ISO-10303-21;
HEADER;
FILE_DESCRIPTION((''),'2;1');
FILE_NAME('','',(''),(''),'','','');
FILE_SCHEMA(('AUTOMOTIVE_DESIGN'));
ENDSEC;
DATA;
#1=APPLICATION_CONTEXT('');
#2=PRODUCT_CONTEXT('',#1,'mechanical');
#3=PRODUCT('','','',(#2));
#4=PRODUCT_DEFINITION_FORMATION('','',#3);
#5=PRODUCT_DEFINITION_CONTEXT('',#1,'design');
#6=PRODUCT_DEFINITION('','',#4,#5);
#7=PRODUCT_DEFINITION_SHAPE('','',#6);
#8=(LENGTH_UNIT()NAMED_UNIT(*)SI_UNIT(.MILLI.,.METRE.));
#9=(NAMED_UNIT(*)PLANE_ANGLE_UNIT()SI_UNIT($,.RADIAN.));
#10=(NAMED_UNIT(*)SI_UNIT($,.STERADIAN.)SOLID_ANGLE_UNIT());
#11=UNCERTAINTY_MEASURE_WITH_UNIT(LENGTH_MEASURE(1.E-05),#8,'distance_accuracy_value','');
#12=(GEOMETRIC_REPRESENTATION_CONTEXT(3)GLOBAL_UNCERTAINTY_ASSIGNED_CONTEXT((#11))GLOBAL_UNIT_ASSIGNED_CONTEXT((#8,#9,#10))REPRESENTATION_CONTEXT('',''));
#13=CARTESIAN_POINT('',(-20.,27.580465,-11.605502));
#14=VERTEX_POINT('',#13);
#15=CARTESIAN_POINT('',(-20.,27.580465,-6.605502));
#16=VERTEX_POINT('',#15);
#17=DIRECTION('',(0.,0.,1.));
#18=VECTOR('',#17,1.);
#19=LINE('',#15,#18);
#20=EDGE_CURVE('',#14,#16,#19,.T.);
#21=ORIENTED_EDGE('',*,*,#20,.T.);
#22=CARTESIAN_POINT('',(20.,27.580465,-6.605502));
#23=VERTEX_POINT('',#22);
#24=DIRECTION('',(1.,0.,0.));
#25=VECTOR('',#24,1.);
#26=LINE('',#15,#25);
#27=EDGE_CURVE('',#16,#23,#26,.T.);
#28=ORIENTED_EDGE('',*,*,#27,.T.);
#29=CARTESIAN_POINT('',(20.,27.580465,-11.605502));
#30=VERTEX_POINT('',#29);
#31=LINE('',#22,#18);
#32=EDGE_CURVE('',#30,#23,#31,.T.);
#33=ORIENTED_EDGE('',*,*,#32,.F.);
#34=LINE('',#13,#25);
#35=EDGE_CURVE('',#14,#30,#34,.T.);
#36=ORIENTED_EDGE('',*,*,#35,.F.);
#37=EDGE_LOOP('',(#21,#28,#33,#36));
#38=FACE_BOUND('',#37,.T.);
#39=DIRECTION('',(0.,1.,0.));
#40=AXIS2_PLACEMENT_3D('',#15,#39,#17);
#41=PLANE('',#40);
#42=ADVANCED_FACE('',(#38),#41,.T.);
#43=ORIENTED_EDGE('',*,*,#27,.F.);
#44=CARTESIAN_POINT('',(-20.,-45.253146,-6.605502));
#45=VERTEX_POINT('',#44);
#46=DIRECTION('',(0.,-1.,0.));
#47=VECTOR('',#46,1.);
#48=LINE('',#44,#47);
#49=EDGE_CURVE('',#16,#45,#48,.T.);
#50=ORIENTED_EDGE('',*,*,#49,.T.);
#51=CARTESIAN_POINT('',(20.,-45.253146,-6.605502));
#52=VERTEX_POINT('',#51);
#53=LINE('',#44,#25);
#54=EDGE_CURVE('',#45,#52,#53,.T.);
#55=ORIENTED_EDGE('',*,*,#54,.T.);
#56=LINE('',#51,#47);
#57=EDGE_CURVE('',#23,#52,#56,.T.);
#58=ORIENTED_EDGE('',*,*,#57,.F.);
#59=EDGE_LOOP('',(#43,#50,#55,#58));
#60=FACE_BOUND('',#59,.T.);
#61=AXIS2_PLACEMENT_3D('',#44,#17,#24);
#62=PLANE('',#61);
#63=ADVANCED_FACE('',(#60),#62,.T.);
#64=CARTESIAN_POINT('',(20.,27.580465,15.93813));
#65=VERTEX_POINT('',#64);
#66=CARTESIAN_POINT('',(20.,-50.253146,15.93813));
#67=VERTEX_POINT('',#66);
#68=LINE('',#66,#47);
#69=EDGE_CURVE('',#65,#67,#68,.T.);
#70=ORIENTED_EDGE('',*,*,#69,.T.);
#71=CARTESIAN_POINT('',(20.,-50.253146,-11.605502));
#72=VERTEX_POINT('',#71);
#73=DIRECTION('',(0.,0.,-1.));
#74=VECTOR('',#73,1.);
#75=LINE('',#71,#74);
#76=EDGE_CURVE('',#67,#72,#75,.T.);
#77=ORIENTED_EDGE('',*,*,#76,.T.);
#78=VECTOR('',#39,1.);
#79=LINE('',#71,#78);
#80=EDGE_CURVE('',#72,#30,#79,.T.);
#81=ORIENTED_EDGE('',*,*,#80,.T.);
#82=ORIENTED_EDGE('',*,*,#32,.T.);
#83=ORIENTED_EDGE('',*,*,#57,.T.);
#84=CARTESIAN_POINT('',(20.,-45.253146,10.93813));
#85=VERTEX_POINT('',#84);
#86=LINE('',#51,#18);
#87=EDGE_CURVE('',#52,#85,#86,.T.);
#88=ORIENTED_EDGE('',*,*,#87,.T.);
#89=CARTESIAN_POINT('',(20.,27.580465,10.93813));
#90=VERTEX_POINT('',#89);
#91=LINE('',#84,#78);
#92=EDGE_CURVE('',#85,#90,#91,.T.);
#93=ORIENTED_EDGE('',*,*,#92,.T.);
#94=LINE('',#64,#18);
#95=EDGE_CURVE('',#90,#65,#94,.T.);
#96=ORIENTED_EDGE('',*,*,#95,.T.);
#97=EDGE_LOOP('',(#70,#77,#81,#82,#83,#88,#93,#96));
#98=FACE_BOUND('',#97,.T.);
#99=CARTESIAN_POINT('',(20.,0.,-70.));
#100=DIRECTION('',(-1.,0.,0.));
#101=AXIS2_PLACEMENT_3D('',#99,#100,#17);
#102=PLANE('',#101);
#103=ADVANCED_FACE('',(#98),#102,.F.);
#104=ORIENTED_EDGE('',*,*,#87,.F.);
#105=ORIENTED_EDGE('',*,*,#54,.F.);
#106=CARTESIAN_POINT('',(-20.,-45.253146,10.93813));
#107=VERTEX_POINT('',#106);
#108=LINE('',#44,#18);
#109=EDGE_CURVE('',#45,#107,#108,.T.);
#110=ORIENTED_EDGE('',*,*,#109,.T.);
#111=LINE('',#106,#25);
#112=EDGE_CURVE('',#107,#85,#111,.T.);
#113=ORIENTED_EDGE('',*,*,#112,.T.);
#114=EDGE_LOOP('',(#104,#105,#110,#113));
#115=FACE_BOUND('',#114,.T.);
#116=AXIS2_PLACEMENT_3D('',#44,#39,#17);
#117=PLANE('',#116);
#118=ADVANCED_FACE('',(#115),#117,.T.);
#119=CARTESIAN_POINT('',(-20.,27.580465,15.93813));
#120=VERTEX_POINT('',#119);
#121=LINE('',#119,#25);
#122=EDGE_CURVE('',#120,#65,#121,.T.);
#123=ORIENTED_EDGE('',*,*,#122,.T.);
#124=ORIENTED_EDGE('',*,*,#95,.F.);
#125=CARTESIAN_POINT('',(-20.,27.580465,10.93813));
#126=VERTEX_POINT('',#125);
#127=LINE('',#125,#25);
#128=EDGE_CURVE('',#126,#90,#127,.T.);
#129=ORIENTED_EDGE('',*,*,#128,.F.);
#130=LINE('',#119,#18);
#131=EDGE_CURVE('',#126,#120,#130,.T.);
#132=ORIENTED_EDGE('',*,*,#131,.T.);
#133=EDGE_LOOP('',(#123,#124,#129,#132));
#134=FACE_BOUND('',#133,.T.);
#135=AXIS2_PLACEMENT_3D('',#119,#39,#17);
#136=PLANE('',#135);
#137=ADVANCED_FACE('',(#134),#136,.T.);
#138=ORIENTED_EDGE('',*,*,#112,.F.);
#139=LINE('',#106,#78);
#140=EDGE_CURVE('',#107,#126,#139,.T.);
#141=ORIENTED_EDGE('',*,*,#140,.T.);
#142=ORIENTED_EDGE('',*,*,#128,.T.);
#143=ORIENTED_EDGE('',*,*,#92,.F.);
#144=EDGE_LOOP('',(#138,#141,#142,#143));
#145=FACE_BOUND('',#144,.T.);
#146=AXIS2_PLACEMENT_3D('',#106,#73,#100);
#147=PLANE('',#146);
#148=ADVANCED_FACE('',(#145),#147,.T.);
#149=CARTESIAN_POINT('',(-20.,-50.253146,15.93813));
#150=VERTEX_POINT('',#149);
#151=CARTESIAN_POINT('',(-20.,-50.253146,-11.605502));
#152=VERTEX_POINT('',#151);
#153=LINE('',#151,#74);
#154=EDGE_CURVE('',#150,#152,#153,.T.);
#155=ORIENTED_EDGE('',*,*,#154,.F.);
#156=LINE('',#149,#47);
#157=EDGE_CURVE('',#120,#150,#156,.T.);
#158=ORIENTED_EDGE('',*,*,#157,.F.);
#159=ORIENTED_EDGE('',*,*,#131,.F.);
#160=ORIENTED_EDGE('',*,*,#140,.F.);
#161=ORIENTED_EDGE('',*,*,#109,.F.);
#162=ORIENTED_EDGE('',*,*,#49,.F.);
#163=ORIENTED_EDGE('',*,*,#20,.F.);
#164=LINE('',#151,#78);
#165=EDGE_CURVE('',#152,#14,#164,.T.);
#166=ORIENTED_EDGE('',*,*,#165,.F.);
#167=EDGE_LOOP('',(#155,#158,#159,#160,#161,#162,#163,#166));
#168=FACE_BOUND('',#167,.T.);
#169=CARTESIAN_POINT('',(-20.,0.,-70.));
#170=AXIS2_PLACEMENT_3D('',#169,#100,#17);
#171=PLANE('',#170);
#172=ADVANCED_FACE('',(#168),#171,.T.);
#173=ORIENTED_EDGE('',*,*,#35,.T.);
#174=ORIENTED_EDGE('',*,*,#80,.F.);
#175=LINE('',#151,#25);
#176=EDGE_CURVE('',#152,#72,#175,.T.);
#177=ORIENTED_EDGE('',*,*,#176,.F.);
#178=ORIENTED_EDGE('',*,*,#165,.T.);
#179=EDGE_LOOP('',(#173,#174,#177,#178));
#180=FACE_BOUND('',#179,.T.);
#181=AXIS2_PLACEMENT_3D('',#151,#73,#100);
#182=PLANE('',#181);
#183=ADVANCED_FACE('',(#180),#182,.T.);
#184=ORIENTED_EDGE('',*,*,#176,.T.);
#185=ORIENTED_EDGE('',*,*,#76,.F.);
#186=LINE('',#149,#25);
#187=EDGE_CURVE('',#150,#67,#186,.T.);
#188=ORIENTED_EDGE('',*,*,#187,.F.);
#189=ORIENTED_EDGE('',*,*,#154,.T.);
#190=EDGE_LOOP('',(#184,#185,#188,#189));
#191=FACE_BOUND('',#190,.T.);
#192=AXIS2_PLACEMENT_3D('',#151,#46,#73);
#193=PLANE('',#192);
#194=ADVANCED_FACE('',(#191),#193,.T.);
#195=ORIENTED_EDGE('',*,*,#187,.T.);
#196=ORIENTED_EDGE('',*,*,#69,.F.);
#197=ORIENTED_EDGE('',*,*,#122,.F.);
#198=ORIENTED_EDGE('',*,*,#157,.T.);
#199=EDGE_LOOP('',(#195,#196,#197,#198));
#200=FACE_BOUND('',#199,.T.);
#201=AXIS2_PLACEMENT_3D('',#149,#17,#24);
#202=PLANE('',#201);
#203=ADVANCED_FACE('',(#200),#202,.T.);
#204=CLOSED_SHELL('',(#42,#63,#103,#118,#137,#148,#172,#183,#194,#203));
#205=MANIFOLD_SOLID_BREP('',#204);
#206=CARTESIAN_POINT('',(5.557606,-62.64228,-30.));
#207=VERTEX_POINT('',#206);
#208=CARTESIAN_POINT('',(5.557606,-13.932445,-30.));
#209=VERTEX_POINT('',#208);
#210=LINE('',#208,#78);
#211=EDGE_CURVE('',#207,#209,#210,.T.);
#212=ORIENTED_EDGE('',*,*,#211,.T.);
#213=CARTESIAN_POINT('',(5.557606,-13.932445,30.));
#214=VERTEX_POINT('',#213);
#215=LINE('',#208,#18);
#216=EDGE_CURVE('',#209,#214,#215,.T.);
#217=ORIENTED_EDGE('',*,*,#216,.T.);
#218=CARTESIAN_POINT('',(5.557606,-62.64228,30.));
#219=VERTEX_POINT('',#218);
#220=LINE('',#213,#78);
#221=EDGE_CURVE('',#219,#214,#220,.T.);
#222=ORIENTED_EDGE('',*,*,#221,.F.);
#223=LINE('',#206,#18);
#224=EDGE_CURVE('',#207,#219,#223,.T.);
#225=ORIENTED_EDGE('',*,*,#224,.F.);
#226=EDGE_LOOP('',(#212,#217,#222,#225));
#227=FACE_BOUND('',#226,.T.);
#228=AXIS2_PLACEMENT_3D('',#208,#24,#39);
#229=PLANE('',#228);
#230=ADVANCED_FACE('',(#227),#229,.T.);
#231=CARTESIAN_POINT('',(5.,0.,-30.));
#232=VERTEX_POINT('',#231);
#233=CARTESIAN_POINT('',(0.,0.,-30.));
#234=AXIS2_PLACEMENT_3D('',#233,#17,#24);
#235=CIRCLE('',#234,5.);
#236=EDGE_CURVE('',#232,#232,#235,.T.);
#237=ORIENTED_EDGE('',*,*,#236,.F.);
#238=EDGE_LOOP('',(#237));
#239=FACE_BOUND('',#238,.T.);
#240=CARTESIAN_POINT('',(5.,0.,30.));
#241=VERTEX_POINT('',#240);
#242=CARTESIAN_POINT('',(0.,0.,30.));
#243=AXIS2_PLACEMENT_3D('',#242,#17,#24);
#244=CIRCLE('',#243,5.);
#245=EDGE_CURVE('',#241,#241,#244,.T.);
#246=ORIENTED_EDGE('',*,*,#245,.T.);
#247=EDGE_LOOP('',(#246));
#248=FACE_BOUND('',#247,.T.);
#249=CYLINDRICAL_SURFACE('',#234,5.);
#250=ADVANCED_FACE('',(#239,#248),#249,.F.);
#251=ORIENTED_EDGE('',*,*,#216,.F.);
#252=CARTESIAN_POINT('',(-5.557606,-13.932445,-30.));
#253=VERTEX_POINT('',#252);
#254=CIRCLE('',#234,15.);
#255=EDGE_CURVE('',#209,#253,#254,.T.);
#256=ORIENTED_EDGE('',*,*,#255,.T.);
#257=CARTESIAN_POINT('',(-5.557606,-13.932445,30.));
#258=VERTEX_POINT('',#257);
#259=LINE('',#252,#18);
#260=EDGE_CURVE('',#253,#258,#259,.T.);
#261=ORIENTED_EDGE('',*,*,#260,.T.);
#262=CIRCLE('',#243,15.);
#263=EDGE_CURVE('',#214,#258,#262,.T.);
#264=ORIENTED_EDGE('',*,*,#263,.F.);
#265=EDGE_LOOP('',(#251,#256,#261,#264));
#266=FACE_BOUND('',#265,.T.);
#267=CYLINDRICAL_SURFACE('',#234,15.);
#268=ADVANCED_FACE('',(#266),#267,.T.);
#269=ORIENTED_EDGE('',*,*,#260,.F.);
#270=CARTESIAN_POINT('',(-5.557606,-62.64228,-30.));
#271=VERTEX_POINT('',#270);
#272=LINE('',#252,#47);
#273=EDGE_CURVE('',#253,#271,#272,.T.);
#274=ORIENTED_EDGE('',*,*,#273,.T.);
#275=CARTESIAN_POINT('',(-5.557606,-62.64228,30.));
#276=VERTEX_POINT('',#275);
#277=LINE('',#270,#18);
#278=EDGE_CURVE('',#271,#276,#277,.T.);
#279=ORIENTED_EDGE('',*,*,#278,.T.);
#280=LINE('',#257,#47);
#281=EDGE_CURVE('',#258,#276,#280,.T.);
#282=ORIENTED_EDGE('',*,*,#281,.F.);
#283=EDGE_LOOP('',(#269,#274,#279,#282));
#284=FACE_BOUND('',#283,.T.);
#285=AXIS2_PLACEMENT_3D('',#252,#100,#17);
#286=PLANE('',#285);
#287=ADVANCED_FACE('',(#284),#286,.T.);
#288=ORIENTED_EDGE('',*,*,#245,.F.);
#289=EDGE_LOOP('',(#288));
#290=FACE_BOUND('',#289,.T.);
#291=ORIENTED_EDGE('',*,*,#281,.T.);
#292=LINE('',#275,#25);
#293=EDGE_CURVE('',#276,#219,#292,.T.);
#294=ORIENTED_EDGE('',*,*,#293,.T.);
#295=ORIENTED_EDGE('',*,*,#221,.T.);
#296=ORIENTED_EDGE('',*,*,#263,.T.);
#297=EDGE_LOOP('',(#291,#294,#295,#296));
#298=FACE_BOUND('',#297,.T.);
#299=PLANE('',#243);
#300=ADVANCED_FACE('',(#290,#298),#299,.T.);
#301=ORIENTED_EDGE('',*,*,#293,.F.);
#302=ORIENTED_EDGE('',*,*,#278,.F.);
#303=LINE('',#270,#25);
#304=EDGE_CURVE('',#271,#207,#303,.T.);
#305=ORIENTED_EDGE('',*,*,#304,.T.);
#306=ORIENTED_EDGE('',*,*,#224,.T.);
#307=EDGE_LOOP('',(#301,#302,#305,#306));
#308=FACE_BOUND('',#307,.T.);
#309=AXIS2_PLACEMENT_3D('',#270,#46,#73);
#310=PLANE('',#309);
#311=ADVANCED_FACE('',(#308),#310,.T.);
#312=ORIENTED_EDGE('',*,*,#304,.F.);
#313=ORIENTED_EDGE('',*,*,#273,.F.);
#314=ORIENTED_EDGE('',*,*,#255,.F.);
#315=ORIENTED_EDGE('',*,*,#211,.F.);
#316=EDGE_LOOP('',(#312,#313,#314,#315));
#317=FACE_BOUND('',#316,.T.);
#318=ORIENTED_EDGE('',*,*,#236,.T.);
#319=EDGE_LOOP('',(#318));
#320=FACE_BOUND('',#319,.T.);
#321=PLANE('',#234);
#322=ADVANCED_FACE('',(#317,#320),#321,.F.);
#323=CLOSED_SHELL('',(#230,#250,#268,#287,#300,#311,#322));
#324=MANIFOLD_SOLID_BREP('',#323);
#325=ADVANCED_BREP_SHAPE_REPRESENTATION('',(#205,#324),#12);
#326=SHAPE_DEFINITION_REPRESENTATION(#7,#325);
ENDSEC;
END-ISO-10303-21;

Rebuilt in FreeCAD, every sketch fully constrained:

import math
import FreeCAD as App
import Part
import Sketcher

V = App.Vector

doc = App.newDocument("Part")
params = doc.addObject("Spreadsheet::Sheet", "Params")
for row, (alias, value) in enumerate([
    ("sketch1_diameter", "10 mm"),
    ("sketch1_radius", "15 mm"),
    ("pad1_length", "30 mm"),
    ("pad1_length2", "30 mm"),
    ("sketch2_height", "5 mm"),
    ("pad2_length", "20 mm"),
    ("pad2_length2", "20 mm"),
], start=1):
    params.set(f"A{row}", alias)
    params.set(f"B{row}", "=" + value)
    params.setAlias(f"B{row}", alias)

body = doc.addObject("PartDesign::Body", "Body")

# Sketch on XY plane
sketch1 = body.newObject("Sketcher::SketchObject", "Sketch")
sketch1.AttachmentSupport = (doc.getObject("XY_Plane"), [""])
sketch1.MapMode = "FlatFace"
sketch1.addGeometry(Part.LineSegment(V(-6, -14, 0), V(-6, -63, 0)), False)
sketch1.addGeometry(Part.LineSegment(V(-6, -63, 0), V(6, -63, 0)), False)
sketch1.addGeometry(Part.LineSegment(V(6, -63, 0), V(6, -14, 0)), False)
sketch1.addGeometry(Part.ArcOfCircle(Part.Circle(V(0, 0, 0), V(0, 0, 1), 15), math.radians(-68), math.radians(248)), False)
sketch1.addGeometry(Part.Circle(V(0, 0, 0), V(0, 0, 1), 5), False)
sketch1.addConstraint(Sketcher.Constraint("Coincident", 0, 2, 1, 1))
sketch1.addConstraint(Sketcher.Constraint("Coincident", 1, 2, 2, 1))
sketch1.addConstraint(Sketcher.Constraint("Coincident", 2, 2, 3, 1))
sketch1.addConstraint(Sketcher.Constraint("Coincident", 3, 2, 0, 1))
sketch1.addConstraint(Sketcher.Constraint("Vertical", 0))
sketch1.addConstraint(Sketcher.Constraint("Horizontal", 1))
sketch1.addConstraint(Sketcher.Constraint("Vertical", 2))
sketch1.addConstraint(Sketcher.Constraint("Coincident", 3, 3, -1, 1))
sketch1.addConstraint(Sketcher.Constraint("Coincident", 4, 3, -1, 1))
sketch1.addConstraint(Sketcher.Constraint("Horizontal", 2, 2, 3, 2))
sketch1.addConstraint(Sketcher.Constraint("Diameter", 4, 10.0))
sketch1.addConstraint(Sketcher.Constraint("Radius", 3, 15.0))
sketch1.addConstraint(Sketcher.Constraint("DistanceX", 1, 1, 1, 2, 11.115213))
sketch1.addConstraint(Sketcher.Constraint("DistanceY", 0, 2, 0, 1, 48.709835))
sketch1.setExpression("Constraints[10]", "Params.sketch1_diameter")
sketch1.setExpression("Constraints[11]", "Params.sketch1_radius")
pad1 = body.newObject("PartDesign::Pad", "Pad")
pad1.Profile = sketch1
pad1.Type = "TwoLengths"
pad1.setExpression("Length", "Params.pad1_length")
pad1.setExpression("Length2", "Params.pad1_length2")
body2 = doc.addObject("PartDesign::Body", "Body001")

# Sketch on YZ plane
sketch2 = body2.newObject("Sketcher::SketchObject", "Sketch001")
sketch2.AttachmentSupport = (doc.getObject("YZ_Plane001"), [""])
sketch2.MapMode = "FlatFace"
sketch2.addGeometry(Part.LineSegment(V(-50, 86, 0), V(-50, 58, 0)), False)
sketch2.addGeometry(Part.LineSegment(V(-50, 58, 0), V(28, 58, 0)), False)
sketch2.addGeometry(Part.LineSegment(V(28, 58, 0), V(28, 63, 0)), False)
sketch2.addGeometry(Part.LineSegment(V(28, 63, 0), V(-45, 63, 0)), False)
sketch2.addGeometry(Part.LineSegment(V(-45, 63, 0), V(-45, 81, 0)), False)
sketch2.addGeometry(Part.LineSegment(V(-45, 81, 0), V(28, 81, 0)), False)
sketch2.addGeometry(Part.LineSegment(V(28, 81, 0), V(28, 86, 0)), False)
sketch2.addGeometry(Part.LineSegment(V(28, 86, 0), V(-50, 86, 0)), False)
sketch2.addConstraint(Sketcher.Constraint("Coincident", 0, 2, 1, 1))
sketch2.addConstraint(Sketcher.Constraint("Coincident", 1, 2, 2, 1))
sketch2.addConstraint(Sketcher.Constraint("Coincident", 2, 2, 3, 1))
sketch2.addConstraint(Sketcher.Constraint("Coincident", 3, 2, 4, 1))
sketch2.addConstraint(Sketcher.Constraint("Coincident", 4, 2, 5, 1))
sketch2.addConstraint(Sketcher.Constraint("Coincident", 5, 2, 6, 1))
sketch2.addConstraint(Sketcher.Constraint("Coincident", 6, 2, 7, 1))
sketch2.addConstraint(Sketcher.Constraint("Coincident", 7, 2, 0, 1))
sketch2.addConstraint(Sketcher.Constraint("Vertical", 0))
sketch2.addConstraint(Sketcher.Constraint("Horizontal", 1))
sketch2.addConstraint(Sketcher.Constraint("Vertical", 2))
sketch2.addConstraint(Sketcher.Constraint("Horizontal", 3))
sketch2.addConstraint(Sketcher.Constraint("Vertical", 4))
sketch2.addConstraint(Sketcher.Constraint("Horizontal", 5))
sketch2.addConstraint(Sketcher.Constraint("Vertical", 6))
sketch2.addConstraint(Sketcher.Constraint("Horizontal", 7))
sketch2.addConstraint(Sketcher.Constraint("Vertical", 2, 2, 5, 2))
sketch2.addConstraint(Sketcher.Constraint("Equal", 2, 6))
sketch2.addConstraint(Sketcher.Constraint("DistanceY", 2, 1, 2, 2, 5.0))
sketch2.addConstraint(Sketcher.Constraint("DistanceX", 0, 2, 3, 2, 5.0))
sketch2.addConstraint(Sketcher.Constraint("DistanceX", 1, 1, 1, 2, 77.833611))
sketch2.addConstraint(Sketcher.Constraint("DistanceY", -1, 1, 0, 2, 58.394498))
sketch2.addConstraint(Sketcher.Constraint("DistanceY", 0, 2, 0, 1, 27.543632))
sketch2.addConstraint(Sketcher.Constraint("DistanceX", 0, 2, -1, 1, 50.253146))
sketch2.setExpression("Constraints[18]", "Params.sketch2_height")
pad2 = body2.newObject("PartDesign::Pad", "Pad001")
pad2.Profile = sketch2
pad2.Type = "TwoLengths"
pad2.setExpression("Length", "Params.pad2_length")
pad2.setExpression("Length2", "Params.pad2_length2")
body3 = doc.addObject("PartDesign::Body", "Body002")
doc.recompute()

body2.Placement = App.Placement(V(0, 0, -70), App.Rotation(V(0, 0, 1), 0))
boolean = body3.newObject("PartDesign::Boolean", "Boolean")
boolean.Type = "Fuse"
boolean.addObjects([body2])

doc.recompute()
